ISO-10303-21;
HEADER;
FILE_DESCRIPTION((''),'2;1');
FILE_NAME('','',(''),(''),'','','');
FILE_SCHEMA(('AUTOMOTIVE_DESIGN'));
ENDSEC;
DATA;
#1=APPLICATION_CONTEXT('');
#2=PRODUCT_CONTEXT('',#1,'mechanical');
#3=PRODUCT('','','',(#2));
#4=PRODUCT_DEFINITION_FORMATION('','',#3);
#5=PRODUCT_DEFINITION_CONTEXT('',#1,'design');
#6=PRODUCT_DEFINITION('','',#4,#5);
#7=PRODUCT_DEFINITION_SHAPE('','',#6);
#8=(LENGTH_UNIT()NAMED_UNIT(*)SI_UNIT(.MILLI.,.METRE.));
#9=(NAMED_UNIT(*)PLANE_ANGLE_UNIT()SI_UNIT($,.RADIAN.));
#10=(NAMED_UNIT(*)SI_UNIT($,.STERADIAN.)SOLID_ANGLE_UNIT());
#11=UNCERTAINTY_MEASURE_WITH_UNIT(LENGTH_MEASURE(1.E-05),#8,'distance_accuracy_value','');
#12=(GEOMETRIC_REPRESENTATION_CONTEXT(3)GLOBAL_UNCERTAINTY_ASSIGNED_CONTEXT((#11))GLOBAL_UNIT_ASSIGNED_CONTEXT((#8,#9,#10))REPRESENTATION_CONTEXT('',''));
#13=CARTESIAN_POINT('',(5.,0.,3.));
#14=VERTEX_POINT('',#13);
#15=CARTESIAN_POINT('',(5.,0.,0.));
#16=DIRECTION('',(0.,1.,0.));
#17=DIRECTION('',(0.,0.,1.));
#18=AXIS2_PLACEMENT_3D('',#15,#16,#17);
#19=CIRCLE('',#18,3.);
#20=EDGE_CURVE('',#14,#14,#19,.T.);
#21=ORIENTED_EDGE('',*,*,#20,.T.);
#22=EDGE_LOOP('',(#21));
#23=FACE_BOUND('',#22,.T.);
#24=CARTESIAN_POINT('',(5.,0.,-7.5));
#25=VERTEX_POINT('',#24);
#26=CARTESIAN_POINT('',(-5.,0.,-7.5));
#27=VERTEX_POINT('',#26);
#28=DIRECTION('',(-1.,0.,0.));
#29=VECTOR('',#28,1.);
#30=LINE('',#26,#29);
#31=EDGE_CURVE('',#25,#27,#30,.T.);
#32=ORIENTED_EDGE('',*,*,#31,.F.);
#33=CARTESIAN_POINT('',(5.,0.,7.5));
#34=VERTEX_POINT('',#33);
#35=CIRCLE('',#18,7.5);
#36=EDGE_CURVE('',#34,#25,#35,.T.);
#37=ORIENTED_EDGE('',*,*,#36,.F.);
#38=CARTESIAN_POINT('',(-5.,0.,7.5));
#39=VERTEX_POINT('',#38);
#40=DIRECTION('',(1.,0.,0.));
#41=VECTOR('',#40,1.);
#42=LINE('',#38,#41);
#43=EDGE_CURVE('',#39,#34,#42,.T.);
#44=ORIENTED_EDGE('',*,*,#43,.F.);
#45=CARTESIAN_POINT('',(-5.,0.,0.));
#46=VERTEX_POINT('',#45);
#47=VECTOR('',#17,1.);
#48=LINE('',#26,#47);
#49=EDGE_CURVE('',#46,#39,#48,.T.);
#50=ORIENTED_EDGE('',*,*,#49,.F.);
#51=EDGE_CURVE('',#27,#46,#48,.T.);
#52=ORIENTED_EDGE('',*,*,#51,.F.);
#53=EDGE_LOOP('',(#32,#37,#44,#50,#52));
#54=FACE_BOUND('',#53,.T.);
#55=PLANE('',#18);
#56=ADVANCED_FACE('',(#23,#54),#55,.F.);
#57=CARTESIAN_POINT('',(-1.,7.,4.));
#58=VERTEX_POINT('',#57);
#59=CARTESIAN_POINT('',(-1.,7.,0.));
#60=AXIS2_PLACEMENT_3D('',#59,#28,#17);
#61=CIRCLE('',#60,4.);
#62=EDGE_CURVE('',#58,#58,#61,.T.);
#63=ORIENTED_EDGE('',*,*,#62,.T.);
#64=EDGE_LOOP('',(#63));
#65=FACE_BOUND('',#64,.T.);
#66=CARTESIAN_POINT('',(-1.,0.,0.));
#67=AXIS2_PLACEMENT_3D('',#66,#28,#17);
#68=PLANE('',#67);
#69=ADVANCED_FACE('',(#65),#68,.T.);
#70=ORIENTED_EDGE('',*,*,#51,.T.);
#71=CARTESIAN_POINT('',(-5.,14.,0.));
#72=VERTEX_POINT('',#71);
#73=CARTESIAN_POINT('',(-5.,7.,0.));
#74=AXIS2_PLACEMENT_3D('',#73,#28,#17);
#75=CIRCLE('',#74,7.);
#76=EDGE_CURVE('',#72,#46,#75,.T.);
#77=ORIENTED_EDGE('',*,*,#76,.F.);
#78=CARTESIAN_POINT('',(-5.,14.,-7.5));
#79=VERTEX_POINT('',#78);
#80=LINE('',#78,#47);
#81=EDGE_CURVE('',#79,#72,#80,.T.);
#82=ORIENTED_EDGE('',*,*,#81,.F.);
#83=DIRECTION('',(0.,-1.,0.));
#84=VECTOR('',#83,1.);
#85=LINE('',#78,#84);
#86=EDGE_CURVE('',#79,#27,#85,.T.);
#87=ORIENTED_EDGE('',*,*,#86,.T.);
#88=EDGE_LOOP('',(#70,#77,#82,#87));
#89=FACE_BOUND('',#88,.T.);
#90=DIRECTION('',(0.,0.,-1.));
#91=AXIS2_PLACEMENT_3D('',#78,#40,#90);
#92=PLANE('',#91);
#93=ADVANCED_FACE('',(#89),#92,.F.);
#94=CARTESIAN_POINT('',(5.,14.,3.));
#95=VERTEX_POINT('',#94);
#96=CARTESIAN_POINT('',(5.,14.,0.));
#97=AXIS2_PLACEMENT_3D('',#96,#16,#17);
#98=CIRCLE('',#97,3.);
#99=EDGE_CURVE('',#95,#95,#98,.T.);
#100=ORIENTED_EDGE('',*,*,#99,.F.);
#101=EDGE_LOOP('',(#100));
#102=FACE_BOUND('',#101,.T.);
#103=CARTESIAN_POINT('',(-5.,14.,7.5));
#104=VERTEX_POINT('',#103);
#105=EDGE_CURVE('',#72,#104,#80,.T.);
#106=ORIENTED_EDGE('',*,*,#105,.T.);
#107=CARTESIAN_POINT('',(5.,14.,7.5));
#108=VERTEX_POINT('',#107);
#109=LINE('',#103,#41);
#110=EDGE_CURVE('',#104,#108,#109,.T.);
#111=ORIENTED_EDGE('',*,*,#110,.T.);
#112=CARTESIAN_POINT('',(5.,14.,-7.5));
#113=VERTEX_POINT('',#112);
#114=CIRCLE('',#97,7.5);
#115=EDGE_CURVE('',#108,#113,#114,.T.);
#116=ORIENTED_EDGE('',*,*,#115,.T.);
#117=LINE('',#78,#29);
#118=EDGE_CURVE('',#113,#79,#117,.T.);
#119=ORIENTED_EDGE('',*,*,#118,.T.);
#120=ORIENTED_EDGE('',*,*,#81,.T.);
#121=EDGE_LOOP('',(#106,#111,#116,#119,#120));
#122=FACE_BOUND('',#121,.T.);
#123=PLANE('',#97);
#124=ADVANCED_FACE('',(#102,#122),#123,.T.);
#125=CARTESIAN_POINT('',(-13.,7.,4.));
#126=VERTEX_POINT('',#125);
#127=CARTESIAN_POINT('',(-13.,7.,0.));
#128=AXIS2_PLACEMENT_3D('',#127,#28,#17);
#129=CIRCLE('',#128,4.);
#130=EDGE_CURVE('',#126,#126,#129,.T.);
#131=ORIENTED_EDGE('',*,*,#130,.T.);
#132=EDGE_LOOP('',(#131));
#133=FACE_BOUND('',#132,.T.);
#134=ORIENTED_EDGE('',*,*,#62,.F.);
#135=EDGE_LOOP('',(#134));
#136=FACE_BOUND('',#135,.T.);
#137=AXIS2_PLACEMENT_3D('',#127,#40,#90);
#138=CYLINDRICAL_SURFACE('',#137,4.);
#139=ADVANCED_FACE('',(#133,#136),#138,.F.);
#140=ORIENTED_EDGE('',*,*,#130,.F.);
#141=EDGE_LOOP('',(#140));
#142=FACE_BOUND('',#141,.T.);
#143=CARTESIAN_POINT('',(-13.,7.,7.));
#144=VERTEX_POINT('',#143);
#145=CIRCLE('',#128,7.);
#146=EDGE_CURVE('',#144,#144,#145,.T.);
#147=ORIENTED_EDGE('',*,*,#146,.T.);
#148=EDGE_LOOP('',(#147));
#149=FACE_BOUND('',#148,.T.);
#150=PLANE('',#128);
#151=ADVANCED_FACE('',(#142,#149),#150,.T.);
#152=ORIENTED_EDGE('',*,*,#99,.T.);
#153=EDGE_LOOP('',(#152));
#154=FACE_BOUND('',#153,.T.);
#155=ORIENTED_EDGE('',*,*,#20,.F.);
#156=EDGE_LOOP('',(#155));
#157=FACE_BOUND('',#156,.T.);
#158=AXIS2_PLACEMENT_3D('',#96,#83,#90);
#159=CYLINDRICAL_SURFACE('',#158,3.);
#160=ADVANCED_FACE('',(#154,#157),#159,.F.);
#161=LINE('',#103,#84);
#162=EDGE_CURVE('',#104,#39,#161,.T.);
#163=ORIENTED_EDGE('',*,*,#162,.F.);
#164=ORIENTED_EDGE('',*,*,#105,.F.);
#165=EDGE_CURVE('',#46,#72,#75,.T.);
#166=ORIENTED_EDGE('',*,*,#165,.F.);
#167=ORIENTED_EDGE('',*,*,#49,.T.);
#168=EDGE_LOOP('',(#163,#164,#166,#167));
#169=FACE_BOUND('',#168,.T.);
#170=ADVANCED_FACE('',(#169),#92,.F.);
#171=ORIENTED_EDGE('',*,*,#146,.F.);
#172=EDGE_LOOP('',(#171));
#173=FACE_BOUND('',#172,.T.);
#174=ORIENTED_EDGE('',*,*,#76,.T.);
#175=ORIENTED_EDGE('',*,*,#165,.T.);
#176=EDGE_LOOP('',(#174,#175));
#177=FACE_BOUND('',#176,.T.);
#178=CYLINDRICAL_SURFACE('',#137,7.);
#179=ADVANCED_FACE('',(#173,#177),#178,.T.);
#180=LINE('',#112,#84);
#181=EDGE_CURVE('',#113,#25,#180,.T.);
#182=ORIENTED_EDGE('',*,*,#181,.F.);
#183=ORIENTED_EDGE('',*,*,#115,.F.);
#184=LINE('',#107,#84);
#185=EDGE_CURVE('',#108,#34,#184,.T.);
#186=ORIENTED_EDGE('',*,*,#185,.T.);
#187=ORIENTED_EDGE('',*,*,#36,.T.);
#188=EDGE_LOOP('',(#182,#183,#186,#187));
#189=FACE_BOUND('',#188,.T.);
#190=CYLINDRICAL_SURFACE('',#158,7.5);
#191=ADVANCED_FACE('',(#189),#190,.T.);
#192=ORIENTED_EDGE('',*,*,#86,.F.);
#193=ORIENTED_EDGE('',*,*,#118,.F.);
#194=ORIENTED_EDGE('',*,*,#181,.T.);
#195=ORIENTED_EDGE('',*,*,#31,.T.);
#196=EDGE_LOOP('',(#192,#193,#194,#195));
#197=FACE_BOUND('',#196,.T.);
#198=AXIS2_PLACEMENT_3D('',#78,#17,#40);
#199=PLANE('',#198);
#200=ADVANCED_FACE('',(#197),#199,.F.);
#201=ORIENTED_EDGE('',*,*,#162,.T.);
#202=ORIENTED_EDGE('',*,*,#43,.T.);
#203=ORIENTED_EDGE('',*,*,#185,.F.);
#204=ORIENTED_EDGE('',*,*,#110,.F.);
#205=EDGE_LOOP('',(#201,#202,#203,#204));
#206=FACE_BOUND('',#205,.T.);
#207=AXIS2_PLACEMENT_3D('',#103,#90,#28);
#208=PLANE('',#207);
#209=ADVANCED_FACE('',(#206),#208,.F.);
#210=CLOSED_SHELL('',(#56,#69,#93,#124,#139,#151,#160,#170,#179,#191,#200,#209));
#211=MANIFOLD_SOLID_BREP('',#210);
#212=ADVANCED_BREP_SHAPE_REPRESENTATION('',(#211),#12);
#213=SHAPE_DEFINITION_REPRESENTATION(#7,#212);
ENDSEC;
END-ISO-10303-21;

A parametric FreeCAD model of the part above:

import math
import FreeCAD as App
import Part
import Sketcher

doc = App.newDocument("Part")
body = doc.addObject("PartDesign::Body", "Body")

sketch1 = doc.addObject("Sketcher::SketchObject", "Sketch")
body.addObject(sketch1)
sketch1.AttachmentSupport = (doc.XZ_Plane, [""])
sketch1.MapMode = "FlatFace"
sketch1.addGeometry([
    Part.LineSegment(App.Vector(5, -7.5, 0), App.Vector(-5, -7.5, 0)),
    Part.LineSegment(App.Vector(-5, -7.5, 0), App.Vector(-5, 7.5, 0)),
    Part.LineSegment(App.Vector(-5, 7.5, 0), App.Vector(5, 7.5, 0)),
    Part.ArcOfCircle(Part.Circle(App.Vector(5, 0, 0), App.Vector(0, 0, 1), 7.5), math.radians(-90), math.radians(90)),
    Part.Circle(App.Vector(5, 0, 0), App.Vector(0, 0, 1), 3),
], False)
sketch1.addConstraint([
    Sketcher.Constraint("Coincident", 0, 2, 1, 1),
    Sketcher.Constraint("Coincident", 1, 2, 2, 1),
    Sketcher.Constraint("Tangent", 2, 2, 3, 2),
    Sketcher.Constraint("Tangent", 3, 1, 0, 1),
    Sketcher.Constraint("Horizontal", 0),
    Sketcher.Constraint("Vertical", 1),
    Sketcher.Constraint("Horizontal", 2),
    Sketcher.Constraint("Coincident", 4, 3, 3, 3),
    Sketcher.Constraint("Symmetric", 0, 2, 2, 2, -1, 1),
    Sketcher.Constraint("Diameter", 4, 6.0),
    Sketcher.Constraint("Radius", 3, 7.5),
    Sketcher.Constraint("DistanceX", 0, 2, 0, 1, 10.0),
])
pad1 = doc.addObject("PartDesign::Pad", "Pad")
body.addObject(pad1)
pad1.Profile = sketch1
pad1.Length = 14
pad1.Reversed = True

sketch2 = doc.addObject("Sketcher::SketchObject", "Sketch001")
body.addObject(sketch2)
sketch2.AttachmentSupport = (doc.YZ_Plane, [""])
sketch2.MapMode = "FlatFace"
sketch2.AttachmentOffset = App.Placement(App.Vector(0, 0, -5), App.Rotation())
sketch2.addGeometry([
    Part.Circle(App.Vector(7, 0, 0), App.Vector(0, 0, 1), 7),
    Part.Circle(App.Vector(7, 0, 0), App.Vector(0, 0, 1), 4),
], False)
sketch2.addConstraint([
    Sketcher.Constraint("Coincident", 1, 3, 0, 3),
    Sketcher.Constraint("PointOnObject", 0, 3, -1),
    Sketcher.Constraint("Diameter", 0, 14.0),
    Sketcher.Constraint("Diameter", 1, 8.0),
    Sketcher.Constraint("DistanceX", -1, 1, 0, 3, 7.0),
])
pad2 = doc.addObject("PartDesign::Pad", "Pad001")
body.addObject(pad2)
pad2.Profile = sketch2
pad2.Length = 8
pad2.Reversed = True

sketch3 = doc.addObject("Sketcher::SketchObject", "Sketch002")
body.addObject(sketch3)
sketch3.AttachmentSupport = (doc.YZ_Plane, [""])
sketch3.MapMode = "FlatFace"
sketch3.AttachmentOffset = App.Placement(App.Vector(0, 0, -1), App.Rotation())
sketch3.addGeometry(Part.Circle(App.Vector(7, 0, 0), App.Vector(0, 0, 1), 4), False)
sketch3.addConstraint([
    Sketcher.Constraint("PointOnObject", 0, 3, -1),
    Sketcher.Constraint("Diameter", 0, 8.0),
    Sketcher.Constraint("DistanceX", -1, 1, 0, 3, 7.0),
])
pocket1 = doc.addObject("PartDesign::Pocket", "Pocket")
body.addObject(pocket1)
pocket1.Profile = sketch3
pocket1.Length = 4

doc.recompute()
